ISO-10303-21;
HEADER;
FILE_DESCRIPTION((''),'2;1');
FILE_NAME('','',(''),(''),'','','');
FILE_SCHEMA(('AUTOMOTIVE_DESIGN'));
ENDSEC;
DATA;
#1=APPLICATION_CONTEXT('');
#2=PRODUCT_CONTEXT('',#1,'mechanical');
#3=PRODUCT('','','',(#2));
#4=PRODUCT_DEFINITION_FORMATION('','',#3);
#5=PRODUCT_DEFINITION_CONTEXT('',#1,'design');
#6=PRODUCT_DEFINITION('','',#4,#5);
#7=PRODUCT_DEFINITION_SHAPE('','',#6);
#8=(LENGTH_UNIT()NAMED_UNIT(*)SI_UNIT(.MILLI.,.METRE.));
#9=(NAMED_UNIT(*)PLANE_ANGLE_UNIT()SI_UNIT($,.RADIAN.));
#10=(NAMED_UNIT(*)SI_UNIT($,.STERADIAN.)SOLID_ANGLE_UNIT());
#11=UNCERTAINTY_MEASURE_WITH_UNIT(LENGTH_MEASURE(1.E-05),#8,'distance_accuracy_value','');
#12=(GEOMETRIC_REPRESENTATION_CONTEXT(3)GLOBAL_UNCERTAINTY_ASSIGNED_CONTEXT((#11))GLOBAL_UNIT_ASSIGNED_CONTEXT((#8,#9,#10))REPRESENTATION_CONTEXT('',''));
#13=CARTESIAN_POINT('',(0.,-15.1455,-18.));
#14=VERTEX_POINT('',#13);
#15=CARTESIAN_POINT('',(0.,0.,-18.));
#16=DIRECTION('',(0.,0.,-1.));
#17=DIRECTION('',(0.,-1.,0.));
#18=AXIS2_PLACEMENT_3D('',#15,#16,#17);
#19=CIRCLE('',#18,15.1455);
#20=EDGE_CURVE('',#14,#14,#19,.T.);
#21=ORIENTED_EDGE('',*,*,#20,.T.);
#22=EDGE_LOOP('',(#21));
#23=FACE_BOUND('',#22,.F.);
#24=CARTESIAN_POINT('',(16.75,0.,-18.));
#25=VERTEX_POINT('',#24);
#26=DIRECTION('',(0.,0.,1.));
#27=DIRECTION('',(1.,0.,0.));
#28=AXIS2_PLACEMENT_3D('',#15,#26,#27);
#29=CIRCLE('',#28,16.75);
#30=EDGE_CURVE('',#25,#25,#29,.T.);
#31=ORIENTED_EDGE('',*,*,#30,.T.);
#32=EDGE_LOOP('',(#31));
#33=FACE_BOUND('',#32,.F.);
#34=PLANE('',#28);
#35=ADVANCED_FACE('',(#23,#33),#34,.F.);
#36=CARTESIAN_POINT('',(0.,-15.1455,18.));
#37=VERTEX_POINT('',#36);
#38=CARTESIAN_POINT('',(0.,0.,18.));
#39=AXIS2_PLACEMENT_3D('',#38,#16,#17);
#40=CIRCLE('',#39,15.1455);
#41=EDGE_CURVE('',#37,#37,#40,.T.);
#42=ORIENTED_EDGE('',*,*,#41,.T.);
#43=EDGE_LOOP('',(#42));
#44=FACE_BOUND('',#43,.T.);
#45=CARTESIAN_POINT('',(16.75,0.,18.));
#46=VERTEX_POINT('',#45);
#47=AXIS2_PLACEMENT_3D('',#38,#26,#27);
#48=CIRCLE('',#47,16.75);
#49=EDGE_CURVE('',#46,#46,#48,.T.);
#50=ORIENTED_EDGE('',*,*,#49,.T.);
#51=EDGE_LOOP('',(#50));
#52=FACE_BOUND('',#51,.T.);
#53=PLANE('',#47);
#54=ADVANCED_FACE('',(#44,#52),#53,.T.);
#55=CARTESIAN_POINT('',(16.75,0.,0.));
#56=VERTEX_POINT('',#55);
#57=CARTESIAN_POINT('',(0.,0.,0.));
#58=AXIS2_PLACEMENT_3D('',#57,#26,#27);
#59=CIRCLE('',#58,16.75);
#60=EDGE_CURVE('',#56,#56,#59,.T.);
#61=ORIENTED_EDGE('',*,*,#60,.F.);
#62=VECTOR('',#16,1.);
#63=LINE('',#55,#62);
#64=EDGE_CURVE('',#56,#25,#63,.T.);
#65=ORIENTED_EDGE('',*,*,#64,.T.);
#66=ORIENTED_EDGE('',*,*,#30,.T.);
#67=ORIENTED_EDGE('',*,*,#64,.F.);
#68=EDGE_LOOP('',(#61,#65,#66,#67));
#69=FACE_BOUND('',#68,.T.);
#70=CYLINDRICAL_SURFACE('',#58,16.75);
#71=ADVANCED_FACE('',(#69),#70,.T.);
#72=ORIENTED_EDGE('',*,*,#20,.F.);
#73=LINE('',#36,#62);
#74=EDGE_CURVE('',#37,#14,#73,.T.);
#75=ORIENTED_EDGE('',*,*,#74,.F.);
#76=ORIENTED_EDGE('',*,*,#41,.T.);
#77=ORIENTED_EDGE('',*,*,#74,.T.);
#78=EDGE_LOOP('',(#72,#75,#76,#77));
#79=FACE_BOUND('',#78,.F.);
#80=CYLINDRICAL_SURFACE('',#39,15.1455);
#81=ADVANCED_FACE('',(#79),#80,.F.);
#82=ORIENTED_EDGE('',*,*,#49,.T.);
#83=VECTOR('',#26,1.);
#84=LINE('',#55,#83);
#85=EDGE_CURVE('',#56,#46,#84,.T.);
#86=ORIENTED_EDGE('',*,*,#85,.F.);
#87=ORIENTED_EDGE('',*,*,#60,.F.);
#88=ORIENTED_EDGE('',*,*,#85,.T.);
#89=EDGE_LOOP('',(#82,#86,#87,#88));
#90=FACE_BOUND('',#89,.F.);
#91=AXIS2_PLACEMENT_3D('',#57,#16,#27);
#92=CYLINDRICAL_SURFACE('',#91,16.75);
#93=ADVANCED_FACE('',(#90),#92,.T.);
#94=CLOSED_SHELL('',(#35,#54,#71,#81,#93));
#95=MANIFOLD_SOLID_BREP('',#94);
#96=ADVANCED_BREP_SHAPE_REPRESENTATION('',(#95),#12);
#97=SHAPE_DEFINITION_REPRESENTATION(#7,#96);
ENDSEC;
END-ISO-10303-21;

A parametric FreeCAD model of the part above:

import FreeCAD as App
import Part
import Sketcher
from FreeCAD import Vector
Q = App.Units.Quantity

doc = App.newDocument("Part")
params = doc.addObject("Spreadsheet::Sheet", "Params")
for row, (alias, value) in enumerate([
    ("sketch1_diameter", "33.5 mm"),
    ("pad1_length", "36 mm"),
    ("hole_diameter", "30.291 mm"),
], start=1):
    params.set(f"A{row}", alias)
    params.set(f"B{row}", "=" + value)
    params.setAlias(f"B{row}", alias)

body = doc.addObject("PartDesign::Body", "Body")

sketch1 = body.newObject("Sketcher::SketchObject", "Sketch")
sketch1.AttachmentSupport = (doc.getObject("XY_Plane"), [""])
sketch1.MapMode = "FlatFace"
sketch1.addGeometry(Part.Circle(Vector(0, 0, 0), Vector(0, 0, 1), 17), False)
sketch1.addConstraint(Sketcher.Constraint("Coincident", 0, 3, -1, 1))
sketch1.addConstraint(Sketcher.Constraint("Diameter", 0, Q("33.5 mm")))
sketch1.setExpression("Constraints[1]", "Params.sketch1_diameter")
pad1 = body.newObject("PartDesign::Pad", "Pad")
pad1.Profile = sketch1
pad1.setExpression("Length", "Params.pad1_length")
pad1.Midplane = True

sketch2 = body.newObject("Sketcher::SketchObject", "Sketch001")
sketch2.AttachmentSupport = (doc.getObject("XY_Plane"), [""])
sketch2.MapMode = "FlatFace"
sketch2.AttachmentOffset = App.Placement(Vector(0, 0, 18), App.Rotation())
sketch2.addGeometry(Part.Circle(Vector(0, 0, 0), Vector(0, 0, 1), 15), False)
sketch2.addConstraint(Sketcher.Constraint("Coincident", 0, 3, -1, 1))
sketch2.addConstraint(Sketcher.Constraint("Diameter", 0, Q("30.291 mm")))
doc.recompute()
hole = body.newObject("PartDesign::Hole", "Hole")
hole.Profile = sketch2
hole.ThreadType = "None"
hole.setExpression("Diameter", "Params.hole_diameter")
hole.DepthType = "ThroughAll"

doc.recompute()
